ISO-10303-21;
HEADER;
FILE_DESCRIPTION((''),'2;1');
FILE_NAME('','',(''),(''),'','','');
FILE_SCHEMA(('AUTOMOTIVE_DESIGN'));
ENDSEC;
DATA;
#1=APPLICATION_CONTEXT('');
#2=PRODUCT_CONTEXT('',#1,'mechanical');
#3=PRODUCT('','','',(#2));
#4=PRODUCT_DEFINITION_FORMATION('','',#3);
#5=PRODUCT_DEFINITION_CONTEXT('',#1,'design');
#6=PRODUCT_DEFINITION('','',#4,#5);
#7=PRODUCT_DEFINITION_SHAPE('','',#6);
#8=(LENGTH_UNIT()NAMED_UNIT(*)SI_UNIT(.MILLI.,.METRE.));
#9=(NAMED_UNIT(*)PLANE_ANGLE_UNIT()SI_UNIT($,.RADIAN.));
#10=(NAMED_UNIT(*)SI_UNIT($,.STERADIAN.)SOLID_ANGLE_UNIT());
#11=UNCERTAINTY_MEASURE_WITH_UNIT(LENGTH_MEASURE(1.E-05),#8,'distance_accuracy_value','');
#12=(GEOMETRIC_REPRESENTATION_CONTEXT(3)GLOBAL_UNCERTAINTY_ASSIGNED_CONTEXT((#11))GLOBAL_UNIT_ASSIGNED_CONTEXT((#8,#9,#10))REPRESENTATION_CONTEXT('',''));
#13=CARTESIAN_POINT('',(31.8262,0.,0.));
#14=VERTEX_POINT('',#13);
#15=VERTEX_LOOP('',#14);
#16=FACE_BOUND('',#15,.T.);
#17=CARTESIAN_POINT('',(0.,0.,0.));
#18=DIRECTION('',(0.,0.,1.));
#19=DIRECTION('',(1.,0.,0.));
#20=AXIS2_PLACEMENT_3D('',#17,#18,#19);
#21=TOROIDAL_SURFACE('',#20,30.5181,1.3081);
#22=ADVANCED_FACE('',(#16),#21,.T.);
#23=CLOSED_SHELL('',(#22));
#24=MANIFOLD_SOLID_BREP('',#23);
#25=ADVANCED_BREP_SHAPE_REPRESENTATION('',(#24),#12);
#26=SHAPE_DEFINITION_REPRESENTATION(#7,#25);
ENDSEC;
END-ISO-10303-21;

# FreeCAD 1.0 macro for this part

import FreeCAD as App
import Part
import Sketcher

V = App.Vector
Q = App.Units.Quantity

doc = App.newDocument("Part")
params = doc.addObject("Spreadsheet::Sheet", "Params")
for row, (alias, value) in enumerate([
    ("sketch1_diameter", "0.103 in"),
    ("revolution_angle", "360 deg"),
], start=1):
    params.set(f"A{row}", alias)
    params.set(f"B{row}", "=" + value)
    params.setAlias(f"B{row}", alias)

body = doc.addObject("PartDesign::Body", "Body")

sketch1 = body.newObject("Sketcher::SketchObject", "Sketch")
sketch1.AttachmentSupport = (doc.getObject("YZ_Plane"), [""])
sketch1.MapMode = "FlatFace"
sketch1.addGeometry(Part.Circle(V(-30.5181, 0, 0), V(0, 0, 1), 1.3081), False)
sketch1.addConstraint(Sketcher.Constraint("PointOnObject", 0, 3, -1))
sketch1.addConstraint(Sketcher.Constraint("Diameter", 0, Q("0.103 in")))
sketch1.addConstraint(Sketcher.Constraint("DistanceX", 0, 3, -1, 1, Q("1.2015 in")))
sketch1.setExpression("Constraints[1]", "Params.sketch1_diameter")
revolution = body.newObject("PartDesign::Revolution", "Revolution")
revolution.Profile = sketch1
revolution.ReferenceAxis = (sketch1, ["V_Axis"])
revolution.setExpression("Angle", "Params.revolution_angle")

doc.recompute()
